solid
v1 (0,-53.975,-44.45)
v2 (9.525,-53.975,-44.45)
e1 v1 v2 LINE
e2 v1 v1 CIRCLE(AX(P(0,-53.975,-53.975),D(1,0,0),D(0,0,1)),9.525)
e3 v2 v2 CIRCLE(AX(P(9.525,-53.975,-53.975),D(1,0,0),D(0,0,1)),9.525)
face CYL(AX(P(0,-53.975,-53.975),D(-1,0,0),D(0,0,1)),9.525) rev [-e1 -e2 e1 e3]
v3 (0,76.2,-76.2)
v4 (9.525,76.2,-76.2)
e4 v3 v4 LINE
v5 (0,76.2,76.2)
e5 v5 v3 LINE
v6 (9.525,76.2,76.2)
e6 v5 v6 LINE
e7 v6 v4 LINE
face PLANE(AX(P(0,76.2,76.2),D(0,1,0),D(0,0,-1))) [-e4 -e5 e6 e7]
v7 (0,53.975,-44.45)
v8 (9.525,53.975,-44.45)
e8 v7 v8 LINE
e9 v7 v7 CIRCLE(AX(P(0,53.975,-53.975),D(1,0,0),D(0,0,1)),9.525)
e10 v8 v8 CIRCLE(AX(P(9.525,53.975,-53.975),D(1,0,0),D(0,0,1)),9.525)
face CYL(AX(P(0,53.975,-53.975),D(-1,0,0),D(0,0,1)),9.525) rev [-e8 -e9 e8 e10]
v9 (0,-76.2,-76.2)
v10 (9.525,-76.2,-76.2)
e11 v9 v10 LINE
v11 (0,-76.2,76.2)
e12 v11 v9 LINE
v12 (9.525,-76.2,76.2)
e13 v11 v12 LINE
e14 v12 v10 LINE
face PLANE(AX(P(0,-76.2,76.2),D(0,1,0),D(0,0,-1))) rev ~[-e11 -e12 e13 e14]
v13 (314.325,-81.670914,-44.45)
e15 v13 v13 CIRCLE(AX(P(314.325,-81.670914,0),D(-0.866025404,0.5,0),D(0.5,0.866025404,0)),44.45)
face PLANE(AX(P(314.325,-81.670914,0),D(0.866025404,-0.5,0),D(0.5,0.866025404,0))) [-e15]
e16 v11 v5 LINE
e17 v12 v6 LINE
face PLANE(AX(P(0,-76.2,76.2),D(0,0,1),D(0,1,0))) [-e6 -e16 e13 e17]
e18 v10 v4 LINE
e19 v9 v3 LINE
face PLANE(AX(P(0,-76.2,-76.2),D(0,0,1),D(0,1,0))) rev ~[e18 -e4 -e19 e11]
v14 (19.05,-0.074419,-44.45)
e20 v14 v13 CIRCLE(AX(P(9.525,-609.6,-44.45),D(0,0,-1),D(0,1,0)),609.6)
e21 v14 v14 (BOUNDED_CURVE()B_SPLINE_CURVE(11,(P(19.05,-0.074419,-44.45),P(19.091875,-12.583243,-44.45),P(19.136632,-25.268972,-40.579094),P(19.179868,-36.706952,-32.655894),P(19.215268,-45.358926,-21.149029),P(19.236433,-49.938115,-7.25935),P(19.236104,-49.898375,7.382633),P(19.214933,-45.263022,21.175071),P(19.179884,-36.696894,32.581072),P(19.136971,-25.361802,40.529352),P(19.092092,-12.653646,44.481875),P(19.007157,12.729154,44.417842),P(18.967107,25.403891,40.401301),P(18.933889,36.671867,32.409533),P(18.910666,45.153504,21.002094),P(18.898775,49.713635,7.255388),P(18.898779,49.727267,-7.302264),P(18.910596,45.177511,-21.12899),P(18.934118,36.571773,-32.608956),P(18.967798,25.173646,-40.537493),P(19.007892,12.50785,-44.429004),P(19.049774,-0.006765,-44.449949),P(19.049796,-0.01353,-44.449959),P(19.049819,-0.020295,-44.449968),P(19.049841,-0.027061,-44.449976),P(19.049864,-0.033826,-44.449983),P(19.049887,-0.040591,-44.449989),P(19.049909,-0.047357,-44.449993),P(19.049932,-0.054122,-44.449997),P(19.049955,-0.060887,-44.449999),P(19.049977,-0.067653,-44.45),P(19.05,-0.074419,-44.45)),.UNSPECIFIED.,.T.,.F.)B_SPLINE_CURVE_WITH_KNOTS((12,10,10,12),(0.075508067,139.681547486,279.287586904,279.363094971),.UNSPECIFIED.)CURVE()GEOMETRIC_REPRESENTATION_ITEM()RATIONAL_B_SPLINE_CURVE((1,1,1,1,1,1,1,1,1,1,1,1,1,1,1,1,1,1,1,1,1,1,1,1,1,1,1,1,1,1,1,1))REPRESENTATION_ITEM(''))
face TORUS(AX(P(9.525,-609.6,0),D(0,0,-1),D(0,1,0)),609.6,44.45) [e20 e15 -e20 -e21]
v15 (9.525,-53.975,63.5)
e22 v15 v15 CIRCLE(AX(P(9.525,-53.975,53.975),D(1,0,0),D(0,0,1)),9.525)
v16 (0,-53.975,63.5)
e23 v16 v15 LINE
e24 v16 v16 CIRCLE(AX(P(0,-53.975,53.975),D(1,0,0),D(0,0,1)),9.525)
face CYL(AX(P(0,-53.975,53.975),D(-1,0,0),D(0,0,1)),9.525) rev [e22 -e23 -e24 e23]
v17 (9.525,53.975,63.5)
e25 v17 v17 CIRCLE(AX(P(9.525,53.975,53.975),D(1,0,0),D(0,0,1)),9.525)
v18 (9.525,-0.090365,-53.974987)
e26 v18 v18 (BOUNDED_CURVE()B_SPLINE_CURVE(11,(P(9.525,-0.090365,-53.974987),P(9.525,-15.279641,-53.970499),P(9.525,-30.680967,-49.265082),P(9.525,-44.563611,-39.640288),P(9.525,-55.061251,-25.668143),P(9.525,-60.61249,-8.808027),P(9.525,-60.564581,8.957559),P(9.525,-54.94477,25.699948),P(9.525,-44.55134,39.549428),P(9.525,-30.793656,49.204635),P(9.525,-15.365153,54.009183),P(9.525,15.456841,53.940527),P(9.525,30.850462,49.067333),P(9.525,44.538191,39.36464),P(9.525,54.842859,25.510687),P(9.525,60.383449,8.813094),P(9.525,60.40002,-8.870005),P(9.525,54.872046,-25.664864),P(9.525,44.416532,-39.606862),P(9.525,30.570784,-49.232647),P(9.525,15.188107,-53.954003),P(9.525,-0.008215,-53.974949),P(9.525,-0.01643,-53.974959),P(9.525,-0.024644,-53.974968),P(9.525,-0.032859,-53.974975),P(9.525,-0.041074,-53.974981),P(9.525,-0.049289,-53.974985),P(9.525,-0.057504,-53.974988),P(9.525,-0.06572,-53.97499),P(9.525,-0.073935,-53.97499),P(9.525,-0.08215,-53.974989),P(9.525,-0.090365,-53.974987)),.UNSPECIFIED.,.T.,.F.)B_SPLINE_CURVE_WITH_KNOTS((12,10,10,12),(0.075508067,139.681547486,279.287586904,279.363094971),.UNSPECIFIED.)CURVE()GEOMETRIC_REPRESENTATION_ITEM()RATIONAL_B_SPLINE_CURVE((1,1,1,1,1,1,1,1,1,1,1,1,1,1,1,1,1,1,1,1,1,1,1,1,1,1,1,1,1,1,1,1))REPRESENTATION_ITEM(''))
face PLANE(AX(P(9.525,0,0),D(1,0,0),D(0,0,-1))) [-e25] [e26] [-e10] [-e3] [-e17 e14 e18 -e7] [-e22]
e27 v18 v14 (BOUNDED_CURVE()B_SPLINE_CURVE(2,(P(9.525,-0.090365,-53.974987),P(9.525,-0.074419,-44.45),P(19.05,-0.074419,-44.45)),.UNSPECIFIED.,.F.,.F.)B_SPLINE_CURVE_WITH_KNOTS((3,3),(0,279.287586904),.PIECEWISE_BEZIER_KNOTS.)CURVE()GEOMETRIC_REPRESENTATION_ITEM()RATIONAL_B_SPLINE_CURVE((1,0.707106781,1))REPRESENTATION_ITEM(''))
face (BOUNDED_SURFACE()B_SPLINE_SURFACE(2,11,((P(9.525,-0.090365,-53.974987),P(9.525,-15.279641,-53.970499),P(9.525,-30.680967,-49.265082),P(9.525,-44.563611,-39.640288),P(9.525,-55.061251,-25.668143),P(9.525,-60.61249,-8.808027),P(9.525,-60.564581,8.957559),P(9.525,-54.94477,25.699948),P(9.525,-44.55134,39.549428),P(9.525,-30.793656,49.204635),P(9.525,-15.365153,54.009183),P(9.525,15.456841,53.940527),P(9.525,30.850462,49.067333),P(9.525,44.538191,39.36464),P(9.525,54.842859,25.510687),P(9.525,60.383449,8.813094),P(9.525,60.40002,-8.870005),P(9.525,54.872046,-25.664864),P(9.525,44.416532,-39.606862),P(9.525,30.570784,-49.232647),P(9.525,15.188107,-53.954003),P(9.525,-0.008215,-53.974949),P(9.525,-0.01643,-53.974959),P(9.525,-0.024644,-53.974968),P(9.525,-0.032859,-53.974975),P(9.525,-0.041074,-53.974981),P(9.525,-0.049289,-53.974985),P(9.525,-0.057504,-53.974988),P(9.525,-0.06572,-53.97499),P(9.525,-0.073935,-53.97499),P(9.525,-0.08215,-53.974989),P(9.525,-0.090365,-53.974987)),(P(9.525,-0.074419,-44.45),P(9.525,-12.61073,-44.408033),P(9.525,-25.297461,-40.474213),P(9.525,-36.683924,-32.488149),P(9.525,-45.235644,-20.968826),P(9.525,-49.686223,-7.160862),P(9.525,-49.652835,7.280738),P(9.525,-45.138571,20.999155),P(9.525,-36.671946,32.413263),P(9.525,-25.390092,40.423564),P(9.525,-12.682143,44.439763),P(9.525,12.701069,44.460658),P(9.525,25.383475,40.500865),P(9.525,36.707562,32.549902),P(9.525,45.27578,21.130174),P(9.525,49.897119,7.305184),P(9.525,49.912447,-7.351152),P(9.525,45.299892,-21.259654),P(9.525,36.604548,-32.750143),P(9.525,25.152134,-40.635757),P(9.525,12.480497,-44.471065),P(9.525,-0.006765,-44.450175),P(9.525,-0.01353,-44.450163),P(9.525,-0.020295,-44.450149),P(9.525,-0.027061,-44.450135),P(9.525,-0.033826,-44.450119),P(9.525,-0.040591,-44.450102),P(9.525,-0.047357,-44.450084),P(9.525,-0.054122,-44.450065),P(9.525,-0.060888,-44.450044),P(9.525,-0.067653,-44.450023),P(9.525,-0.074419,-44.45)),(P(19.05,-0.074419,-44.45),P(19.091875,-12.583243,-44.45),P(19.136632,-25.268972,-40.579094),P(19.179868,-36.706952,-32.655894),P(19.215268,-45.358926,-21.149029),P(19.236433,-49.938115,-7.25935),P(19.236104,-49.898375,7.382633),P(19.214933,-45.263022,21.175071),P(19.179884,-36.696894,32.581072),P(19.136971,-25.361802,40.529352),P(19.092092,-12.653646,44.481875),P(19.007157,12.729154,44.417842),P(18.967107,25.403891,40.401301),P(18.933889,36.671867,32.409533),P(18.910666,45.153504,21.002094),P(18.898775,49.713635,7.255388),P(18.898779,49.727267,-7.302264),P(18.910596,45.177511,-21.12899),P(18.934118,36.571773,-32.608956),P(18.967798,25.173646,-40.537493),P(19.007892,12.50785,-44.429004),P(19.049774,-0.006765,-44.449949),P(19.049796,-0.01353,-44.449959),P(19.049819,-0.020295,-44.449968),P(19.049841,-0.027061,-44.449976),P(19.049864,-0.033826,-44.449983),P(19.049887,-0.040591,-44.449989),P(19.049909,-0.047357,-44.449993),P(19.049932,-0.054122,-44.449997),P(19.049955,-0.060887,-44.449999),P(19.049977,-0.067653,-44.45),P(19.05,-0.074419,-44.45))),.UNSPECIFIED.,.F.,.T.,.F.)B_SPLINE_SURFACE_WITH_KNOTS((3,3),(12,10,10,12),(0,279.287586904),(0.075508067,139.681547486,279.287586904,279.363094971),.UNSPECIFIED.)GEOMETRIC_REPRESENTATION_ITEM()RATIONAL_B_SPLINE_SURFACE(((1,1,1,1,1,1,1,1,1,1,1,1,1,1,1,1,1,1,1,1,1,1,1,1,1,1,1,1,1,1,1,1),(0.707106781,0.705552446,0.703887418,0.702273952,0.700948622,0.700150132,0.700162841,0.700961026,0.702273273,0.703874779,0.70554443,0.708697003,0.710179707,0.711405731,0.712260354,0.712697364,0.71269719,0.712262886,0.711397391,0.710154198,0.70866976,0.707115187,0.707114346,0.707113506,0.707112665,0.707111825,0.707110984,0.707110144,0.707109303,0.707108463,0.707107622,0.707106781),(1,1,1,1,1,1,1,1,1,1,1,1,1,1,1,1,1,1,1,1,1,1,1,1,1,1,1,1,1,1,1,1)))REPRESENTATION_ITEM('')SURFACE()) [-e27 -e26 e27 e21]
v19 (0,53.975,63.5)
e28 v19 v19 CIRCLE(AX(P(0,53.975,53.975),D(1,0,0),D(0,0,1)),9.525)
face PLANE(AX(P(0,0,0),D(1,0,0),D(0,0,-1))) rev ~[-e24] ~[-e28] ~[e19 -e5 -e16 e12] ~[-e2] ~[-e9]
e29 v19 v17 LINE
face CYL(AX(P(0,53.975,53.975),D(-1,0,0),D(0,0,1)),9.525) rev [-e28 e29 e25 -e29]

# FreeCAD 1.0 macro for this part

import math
import FreeCAD as App
import Part
import Sketcher

V = App.Vector
Q = App.Units.Quantity


def edges_at(feature, points):
    """Names of the edges that pass closest to the given points."""
    edges = feature.Shape.Edges
    near = lambda p: min(range(len(edges)), key=lambda i: edges[i].distToShape(Part.Vertex(*p))[0])
    return sorted({f"Edge{near(p) + 1}" for p in points})

doc = App.newDocument("Part")
params = doc.addObject("Spreadsheet::Sheet", "Params")
for row, (alias, value) in enumerate([
    ("sketch1_diameter", "0.75 in"),
    ("sketch1_width", "6 in"),
    ("pad1_length", "0.375 in"),
    ("sketch2_diameter", "3.5 in"),
    ("sketch3_radius", "24 in"),
    ("sketch3_width", "12 in"),
    ("sketch3_width2", "12 in"),
    ("fillet_radius", "0.375 in"),
], start=1):
    params.set(f"A{row}", alias)
    params.set(f"B{row}", "=" + value)
    params.setAlias(f"B{row}", alias)

body = doc.addObject("PartDesign::Body", "Body")

sketch1 = doc.addObject("Sketcher::SketchObject", "Sketch")
body.addObject(sketch1)
sketch1.AttachmentSupport = (doc.YZ_Plane, [""])
sketch1.MapMode = "FlatFace"
sketch1.addGeometry(Part.LineSegment(V(76, 76, 0), V(-76, 76, 0)), False)
sketch1.addGeometry(Part.LineSegment(V(-76, 76, 0), V(-76, -76, 0)), False)
sketch1.addGeometry(Part.LineSegment(V(-76, -76, 0), V(76, -76, 0)), False)
sketch1.addGeometry(Part.LineSegment(V(76, -76, 0), V(76, 76, 0)), False)
sketch1.addGeometry(Part.Circle(V(-54, 54, 0), V(0, 0, 1), 10), False)
sketch1.addGeometry(Part.Circle(V(-54, -54, 0), V(0, 0, 1), 10), False)
sketch1.addGeometry(Part.Circle(V(54, 54, 0), V(0, 0, 1), 10), False)
sketch1.addGeometry(Part.Circle(V(54, -54, 0), V(0, 0, 1), 10), False)
sketch1.addConstraint(Sketcher.Constraint("Coincident", 0, 2, 1, 1))
sketch1.addConstraint(Sketcher.Constraint("Coincident", 1, 2, 2, 1))
sketch1.addConstraint(Sketcher.Constraint("Coincident", 2, 2, 3, 1))
sketch1.addConstraint(Sketcher.Constraint("Coincident", 3, 2, 0, 1))
sketch1.addConstraint(Sketcher.Constraint("Horizontal", 0))
sketch1.addConstraint(Sketcher.Constraint("Vertical", 1))
sketch1.addConstraint(Sketcher.Constraint("Horizontal", 2))
sketch1.addConstraint(Sketcher.Constraint("Vertical", 3))
sketch1.addConstraint(Sketcher.Constraint("Equal", 4, 5))
sketch1.addConstraint(Sketcher.Constraint("Equal", 5, 6))
sketch1.addConstraint(Sketcher.Constraint("Equal", 6, 7))
sketch1.addConstraint(Sketcher.Constraint("Symmetric", 5, 3, 6, 3, -1, 1))
sketch1.addConstraint(Sketcher.Constraint("Symmetric", 4, 3, 7, 3, -1, 1))
sketch1.addConstraint(Sketcher.Constraint("Symmetric", 0, 2, 2, 2, -1, 1))
sketch1.addConstraint(Sketcher.Constraint("Symmetric", 4, 3, 6, 3, -2))
sketch1.addConstraint(Sketcher.Constraint("Equal", 2, 1))
sketch1.addConstraint(Sketcher.Constraint("Diameter", 4, Q("0.75 in")))
sketch1.addConstraint(Sketcher.Constraint("DistanceX", 0, 2, 0, 1, Q("6 in")))
sketch1.addConstraint(Sketcher.Constraint("DistanceY", 5, 3, 4, 3, Q("4.25 in")))
sketch1.addConstraint(Sketcher.Constraint("DistanceX", 4, 3, 6, 3, Q("4.25 in")))
sketch1.setExpression("Constraints[16]", "Params.sketch1_diameter")
sketch1.setExpression("Constraints[17]", "Params.sketch1_width")
pad1 = doc.addObject("PartDesign::Pad", "Pad")
body.addObject(pad1)
pad1.Profile = sketch1
pad1.setExpression("Length", "Params.pad1_length")

sketch2 = doc.addObject("Sketcher::SketchObject", "Sketch001")
body.addObject(sketch2)
sketch2.AttachmentSupport = (doc.YZ_Plane, [""])
sketch2.MapMode = "FlatFace"
sketch2.AttachmentOffset = App.Placement(V(0, 0, 0.375 * 25.4), App.Rotation())
sketch2.addGeometry(Part.Circle(V(0, 0, 0), V(0, 0, 1), 44), False)
sketch2.addConstraint(Sketcher.Constraint("Coincident", 0, 3, -1, 1))
sketch2.addConstraint(Sketcher.Constraint("Diameter", 0, Q("3.5 in")))
sketch2.setExpression("Constraints[1]", "Params.sketch2_diameter")

sketch3 = doc.addObject("Sketcher::SketchObject", "Sketch002")
body.addObject(sketch3)
sketch3.AttachmentSupport = (doc.XY_Plane, [""])
sketch3.MapMode = "FlatFace"
sketch3.addGeometry(Part.ArcOfCircle(Part.Circle(V(10, -610, 0), V(0, 0, 1), 610), math.radians(60), math.radians(90)), False)
sketch3.addConstraint(Sketcher.Constraint("PointOnObject", 0, 2, -1))
sketch3.addConstraint(Sketcher.Constraint("Radius", 0, Q("24 in")))
sketch3.addConstraint(Sketcher.Constraint("DistanceX", 0, 3, 0, 1, Q("12 in")))
sketch3.addConstraint(Sketcher.Constraint("DistanceX", 0, 2, 0, 1, Q("12 in")))
sketch3.addConstraint(Sketcher.Constraint("DistanceX", -1, 1, 0, 3, Q("0.375 in")))
sketch3.setExpression("Constraints[1]", "Params.sketch3_radius")
sketch3.setExpression("Constraints[2]", "Params.sketch3_width")
sketch3.setExpression("Constraints[3]", "Params.sketch3_width2")
doc.recompute()

additivepipe = doc.addObject("PartDesign::AdditivePipe", "AdditivePipe")
body.addObject(additivepipe)
additivepipe.Profile = sketch2
additivepipe.Spine = (sketch3, ["Edge1"])
doc.recompute()

fillet = doc.addObject("PartDesign::Fillet", "Fillet")
body.addObject(fillet)
fillet.Base = (additivepipe, edges_at(additivepipe, [(9.525, 0, 44.45)]))
fillet.setExpression("Radius", "Params.fillet_radius")

doc.recompute()
